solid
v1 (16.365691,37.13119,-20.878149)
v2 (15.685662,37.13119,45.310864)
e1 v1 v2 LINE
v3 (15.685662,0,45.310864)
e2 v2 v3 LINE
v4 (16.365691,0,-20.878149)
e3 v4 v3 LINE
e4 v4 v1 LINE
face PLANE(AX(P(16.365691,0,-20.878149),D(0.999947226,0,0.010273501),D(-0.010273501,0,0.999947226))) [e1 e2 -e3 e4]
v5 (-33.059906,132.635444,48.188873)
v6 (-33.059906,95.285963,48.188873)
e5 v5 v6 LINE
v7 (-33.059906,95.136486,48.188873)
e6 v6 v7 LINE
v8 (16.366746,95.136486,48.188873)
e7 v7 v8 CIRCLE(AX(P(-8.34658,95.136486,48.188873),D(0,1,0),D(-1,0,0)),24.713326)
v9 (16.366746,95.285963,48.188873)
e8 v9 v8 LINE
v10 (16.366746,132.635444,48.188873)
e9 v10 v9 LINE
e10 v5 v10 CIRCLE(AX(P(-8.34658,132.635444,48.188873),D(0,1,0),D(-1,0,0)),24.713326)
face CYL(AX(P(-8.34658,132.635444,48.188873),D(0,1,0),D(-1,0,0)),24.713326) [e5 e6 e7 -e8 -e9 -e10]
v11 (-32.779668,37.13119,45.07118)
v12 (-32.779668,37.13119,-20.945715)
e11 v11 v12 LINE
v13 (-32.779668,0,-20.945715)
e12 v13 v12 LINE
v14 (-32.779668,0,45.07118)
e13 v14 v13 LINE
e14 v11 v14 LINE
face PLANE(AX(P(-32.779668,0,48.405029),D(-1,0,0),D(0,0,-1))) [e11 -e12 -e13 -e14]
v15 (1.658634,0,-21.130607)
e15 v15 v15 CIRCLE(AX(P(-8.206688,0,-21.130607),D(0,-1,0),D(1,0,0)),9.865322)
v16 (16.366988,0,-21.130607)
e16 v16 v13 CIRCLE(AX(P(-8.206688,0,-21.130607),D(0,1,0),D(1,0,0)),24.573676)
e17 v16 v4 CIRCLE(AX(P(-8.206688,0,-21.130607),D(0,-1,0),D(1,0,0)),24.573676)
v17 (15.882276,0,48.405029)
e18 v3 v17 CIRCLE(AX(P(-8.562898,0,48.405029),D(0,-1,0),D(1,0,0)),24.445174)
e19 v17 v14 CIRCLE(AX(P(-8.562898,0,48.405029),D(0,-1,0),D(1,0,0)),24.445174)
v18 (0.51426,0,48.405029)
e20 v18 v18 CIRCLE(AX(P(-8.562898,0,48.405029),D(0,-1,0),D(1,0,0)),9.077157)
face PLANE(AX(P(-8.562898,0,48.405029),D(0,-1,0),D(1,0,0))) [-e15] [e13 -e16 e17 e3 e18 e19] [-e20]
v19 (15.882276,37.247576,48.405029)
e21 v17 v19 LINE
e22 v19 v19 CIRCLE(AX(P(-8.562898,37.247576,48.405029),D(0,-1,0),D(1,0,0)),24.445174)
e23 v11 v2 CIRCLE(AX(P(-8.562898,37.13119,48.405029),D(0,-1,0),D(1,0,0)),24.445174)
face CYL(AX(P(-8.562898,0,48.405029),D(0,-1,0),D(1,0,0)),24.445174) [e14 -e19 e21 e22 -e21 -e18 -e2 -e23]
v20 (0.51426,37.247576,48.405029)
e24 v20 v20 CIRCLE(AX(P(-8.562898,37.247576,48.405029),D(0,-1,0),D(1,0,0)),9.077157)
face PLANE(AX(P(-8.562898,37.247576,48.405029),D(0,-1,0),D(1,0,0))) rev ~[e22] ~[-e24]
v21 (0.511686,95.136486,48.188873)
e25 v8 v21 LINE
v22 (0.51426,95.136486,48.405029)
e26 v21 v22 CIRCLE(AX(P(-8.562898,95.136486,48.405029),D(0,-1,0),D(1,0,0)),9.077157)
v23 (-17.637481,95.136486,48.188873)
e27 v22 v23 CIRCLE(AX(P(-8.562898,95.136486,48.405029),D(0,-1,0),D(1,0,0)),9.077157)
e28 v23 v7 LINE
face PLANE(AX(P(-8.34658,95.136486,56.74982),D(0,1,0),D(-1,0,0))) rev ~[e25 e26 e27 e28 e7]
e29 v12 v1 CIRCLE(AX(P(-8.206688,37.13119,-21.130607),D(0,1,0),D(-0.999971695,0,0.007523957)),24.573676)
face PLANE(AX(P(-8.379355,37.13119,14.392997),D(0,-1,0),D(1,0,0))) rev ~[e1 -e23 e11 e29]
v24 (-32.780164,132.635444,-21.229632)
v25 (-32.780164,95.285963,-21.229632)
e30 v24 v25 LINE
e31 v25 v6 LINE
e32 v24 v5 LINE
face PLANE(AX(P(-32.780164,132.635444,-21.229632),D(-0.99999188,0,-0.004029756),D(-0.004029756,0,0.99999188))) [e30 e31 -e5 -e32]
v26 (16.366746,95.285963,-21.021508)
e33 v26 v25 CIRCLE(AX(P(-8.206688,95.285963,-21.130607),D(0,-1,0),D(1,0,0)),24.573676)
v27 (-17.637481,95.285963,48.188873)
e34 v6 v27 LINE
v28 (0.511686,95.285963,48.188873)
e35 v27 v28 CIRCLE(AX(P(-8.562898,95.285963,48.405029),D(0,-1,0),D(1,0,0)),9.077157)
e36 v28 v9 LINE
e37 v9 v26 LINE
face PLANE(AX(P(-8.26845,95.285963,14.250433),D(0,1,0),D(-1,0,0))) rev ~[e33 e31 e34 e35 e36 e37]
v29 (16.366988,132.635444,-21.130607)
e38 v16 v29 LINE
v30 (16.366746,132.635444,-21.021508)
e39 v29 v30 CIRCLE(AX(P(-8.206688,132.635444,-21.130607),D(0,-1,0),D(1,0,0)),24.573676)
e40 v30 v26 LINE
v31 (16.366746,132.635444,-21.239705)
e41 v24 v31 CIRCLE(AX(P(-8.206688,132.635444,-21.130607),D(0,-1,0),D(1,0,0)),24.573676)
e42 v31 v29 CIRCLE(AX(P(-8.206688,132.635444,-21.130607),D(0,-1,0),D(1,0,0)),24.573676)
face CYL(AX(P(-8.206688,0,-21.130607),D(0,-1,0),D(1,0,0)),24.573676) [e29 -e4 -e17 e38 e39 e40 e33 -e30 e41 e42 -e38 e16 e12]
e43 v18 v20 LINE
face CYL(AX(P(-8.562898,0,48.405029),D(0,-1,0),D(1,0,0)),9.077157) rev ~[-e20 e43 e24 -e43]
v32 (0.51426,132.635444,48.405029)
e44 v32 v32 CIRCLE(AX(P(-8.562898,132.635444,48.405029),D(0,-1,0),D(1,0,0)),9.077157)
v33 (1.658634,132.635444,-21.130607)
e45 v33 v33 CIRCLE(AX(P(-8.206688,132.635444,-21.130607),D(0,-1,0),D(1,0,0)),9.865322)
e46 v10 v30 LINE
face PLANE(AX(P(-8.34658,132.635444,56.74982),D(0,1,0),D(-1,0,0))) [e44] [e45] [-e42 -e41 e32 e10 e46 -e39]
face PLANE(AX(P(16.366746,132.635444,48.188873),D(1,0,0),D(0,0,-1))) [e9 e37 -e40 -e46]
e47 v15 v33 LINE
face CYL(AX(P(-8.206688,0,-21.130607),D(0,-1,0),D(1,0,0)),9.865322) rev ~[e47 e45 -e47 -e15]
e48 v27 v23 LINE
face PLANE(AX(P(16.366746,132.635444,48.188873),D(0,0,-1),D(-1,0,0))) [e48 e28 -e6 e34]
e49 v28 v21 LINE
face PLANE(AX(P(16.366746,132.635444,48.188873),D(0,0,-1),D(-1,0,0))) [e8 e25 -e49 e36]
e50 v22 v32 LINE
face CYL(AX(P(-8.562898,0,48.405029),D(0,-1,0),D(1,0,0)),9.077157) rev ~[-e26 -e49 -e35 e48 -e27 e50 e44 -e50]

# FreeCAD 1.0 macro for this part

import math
import FreeCAD as App
import Part
import Sketcher
Q = App.Units.Quantity

doc = App.newDocument("Part")
body = doc.addObject("PartDesign::Body", "Body")

sketch1 = doc.addObject("Sketcher::SketchObject", "Sketch")
body.addObject(sketch1)
sketch1.AttachmentSupport = (doc.XZ_Plane, [""])
sketch1.MapMode = "FlatFace"
sketch1.addGeometry(Part.Circle(App.Vector(-8, -21, 0), App.Vector(0, 0, 1), 25), False)
sketch1.addConstraint(Sketcher.Constraint("Diameter", 0, Q("49.147352 mm")))
sketch1.addConstraint(Sketcher.Constraint("DistanceX", 0, 3, -1, 1, Q("8.206688 mm")))
sketch1.addConstraint(Sketcher.Constraint("DistanceY", 0, 3, -1, 1, Q("21.130607 mm")))
pad1 = doc.addObject("PartDesign::Pad", "Pad")
body.addObject(pad1)
pad1.Profile = sketch1
pad1.Length = 132.635444
pad1.Reversed = True

sketch2 = doc.addObject("Sketcher::SketchObject", "Sketch001")
body.addObject(sketch2)
sketch2.AttachmentSupport = (doc.XZ_Plane, [""])
sketch2.MapMode = "FlatFace"
sketch2.addGeometry(Part.ArcOfCircle(Part.Circle(App.Vector(-8.21, -21.13, 0), App.Vector(0, 0, 1), 24.57), math.radians(179.57), math.radians(180.43)), False)
sketch2.addGeometry(Part.LineSegment(App.Vector(-32.78, -21.32, 0), App.Vector(-32.78, -20.95, 0)), False)
sketch2.addGeometry(Part.LineSegment(App.Vector(-32.78, 48.41, 0), App.Vector(-32.78, -20.95, 0)), False)
sketch2.addGeometry(Part.ArcOfCircle(Part.Circle(App.Vector(-8.21, -21.13, 0), App.Vector(0, 0, 1), 24.57), math.radians(1), math.radians(180)), False)
sketch2.addGeometry(Part.LineSegment(App.Vector(16.37, -20.88, 0), App.Vector(15.65, 48.41, 0)), False)
sketch2.addGeometry(Part.LineSegment(App.Vector(15.65, 48.41, 0), App.Vector(-32.78, 48.41, 0)), False)
sketch2.addConstraint(Sketcher.Constraint("Coincident", 0, 1, 1, 2))
sketch2.addConstraint(Sketcher.Constraint("Coincident", 1, 1, 0, 2))
sketch2.addConstraint(Sketcher.Constraint("Coincident", 2, 2, 3, 2))
sketch2.addConstraint(Sketcher.Constraint("Tangent", 3, 1, 4, 1))
sketch2.addConstraint(Sketcher.Constraint("Coincident", 4, 2, 5, 1))
sketch2.addConstraint(Sketcher.Constraint("Coincident", 5, 2, 2, 1))
sketch2.addConstraint(Sketcher.Constraint("Vertical", 1))
sketch2.addConstraint(Sketcher.Constraint("Vertical", 2))
sketch2.addConstraint(Sketcher.Constraint("Horizontal", 5))
sketch2.addConstraint(Sketcher.Constraint("Coincident", 3, 3, 0, 3))
sketch2.addConstraint(Sketcher.Constraint("Coincident", 2, 2, 0, 1))
sketch2.addConstraint(Sketcher.Constraint("Radius", 0, Q("24.573675 mm")))
sketch2.addConstraint(Sketcher.Constraint("DistanceX", 5, 2, 5, 1, Q("48.433541 mm")))
sketch2.addConstraint(Sketcher.Constraint("DistanceY", 1, 1, 1, 2, Q("0.369783 mm")))
sketch2.addConstraint(Sketcher.Constraint("DistanceY", 2, 2, 2, 1, Q("69.350745 mm")))
sketch2.addConstraint(Sketcher.Constraint("DistanceX", 0, 3, -1, 1, Q("8.206689 mm")))
sketch2.addConstraint(Sketcher.Constraint("DistanceY", 3, 1, -1, 1, Q("20.878149 mm")))
pad2 = doc.addObject("PartDesign::Pad", "Pad001")
body.addObject(pad2)
pad2.Profile = sketch2
pad2.Length = 37.13119
pad2.Reversed = True

sketch3 = doc.addObject("Sketcher::SketchObject", "Sketch002")
body.addObject(sketch3)
sketch3.AttachmentSupport = (doc.XZ_Plane, [""])
sketch3.MapMode = "FlatFace"
sketch3.AttachmentOffset = App.Placement(App.Vector(0, 0, -132.635444), App.Rotation())
sketch3.addGeometry(Part.LineSegment(App.Vector(16, 48, 0), App.Vector(16, -21, 0)), False)
sketch3.addGeometry(Part.ArcOfCircle(Part.Circle(App.Vector(-8, -21, 0), App.Vector(0, 0, 1), 25), math.radians(0), math.radians(180)), False)
sketch3.addGeometry(Part.LineSegment(App.Vector(-33, -21, 0), App.Vector(-33, 48, 0)), False)
sketch3.addGeometry(Part.LineSegment(App.Vector(-33, 48, 0), App.Vector(16, 48, 0)), False)
sketch3.addConstraint(Sketcher.Constraint("Tangent", 0, 2, 1, 1))
sketch3.addConstraint(Sketcher.Constraint("Coincident", 1, 2, 2, 1))
sketch3.addConstraint(Sketcher.Constraint("Coincident", 2, 2, 3, 1))
sketch3.addConstraint(Sketcher.Constraint("Coincident", 3, 2, 0, 1))
sketch3.addConstraint(Sketcher.Constraint("Vertical", 0))
sketch3.addConstraint(Sketcher.Constraint("Horizontal", 3))
sketch3.addConstraint(Sketcher.Constraint("Radius", 1, Q("24.573456 mm")))
sketch3.addConstraint(Sketcher.Constraint("Distance", 2, Q("69.419069 mm")))
sketch3.addConstraint(Sketcher.Constraint("DistanceX", 3, 1, 3, 2, Q("49.426652 mm")))
sketch3.addConstraint(Sketcher.Constraint("DistanceY", 0, 2, 0, 1, Q("69.428578 mm")))
sketch3.addConstraint(Sketcher.Constraint("DistanceX", 1, 3, -1, 1, Q("8.20671 mm")))
sketch3.addConstraint(Sketcher.Constraint("DistanceY", 1, 3, -1, 1, Q("21.239705 mm")))
pad3 = doc.addObject("PartDesign::Pad", "Pad002")
body.addObject(pad3)
pad3.Profile = sketch3
pad3.Length = 37.349481

sketch4 = doc.addObject("Sketcher::SketchObject", "Sketch003")
body.addObject(sketch4)
sketch4.AttachmentSupport = (doc.XZ_Plane, [""])
sketch4.MapMode = "FlatFace"
sketch4.addGeometry(Part.Circle(App.Vector(-9, 48, 0), App.Vector(0, 0, 1), 24), False)
sketch4.addConstraint(Sketcher.Constraint("Diameter", 0, Q("48.890348 mm")))
sketch4.addConstraint(Sketcher.Constraint("DistanceY", -1, 1, 0, 3, Q("48.405029 mm")))
sketch4.addConstraint(Sketcher.Constraint("DistanceX", 0, 3, -1, 1, Q("8.562898 mm")))
pad4 = doc.addObject("PartDesign::Pad", "Pad003")
body.addObject(pad4)
pad4.Profile = sketch4
pad4.Length = 37.247576
pad4.Reversed = True

sketch5 = doc.addObject("Sketcher::SketchObject", "Sketch004")
body.addObject(sketch5)
sketch5.AttachmentSupport = (doc.XZ_Plane, [""])
sketch5.MapMode = "FlatFace"
sketch5.AttachmentOffset = App.Placement(App.Vector(0, 0, -132.635444), App.Rotation())
sketch5.addGeometry(Part.LineSegment(App.Vector(16, 48, 0), App.Vector(-33, 48, 0)), False)
sketch5.addGeometry(Part.ArcOfCircle(Part.Circle(App.Vector(-8, 48, 0), App.Vector(0, 0, 1), 25), math.radians(0), math.radians(180)), False)
sketch5.addConstraint(Sketcher.Constraint("Coincident", 0, 1, 1, 1))
sketch5.addConstraint(Sketcher.Constraint("Coincident", 1, 2, 0, 2))
sketch5.addConstraint(Sketcher.Constraint("Horizontal", 0))
sketch5.addConstraint(Sketcher.Constraint("Horizontal", 1, 3, 0, 1))
sketch5.addConstraint(Sketcher.Constraint("Radius", 1, Q("24.713326 mm")))
sketch5.addConstraint(Sketcher.Constraint("DistanceX", 1, 3, -1, 1, Q("8.34658 mm")))
sketch5.addConstraint(Sketcher.Constraint("DistanceY", -1, 1, 1, 3, Q("48.188873 mm")))
pad5 = doc.addObject("PartDesign::Pad", "Pad004")
body.addObject(pad5)
pad5.Profile = sketch5
pad5.Length = 37.498958

sketch6 = doc.addObject("Sketcher::SketchObject", "Sketch005")
body.addObject(sketch6)
sketch6.AttachmentSupport = (doc.XZ_Plane, [""])
sketch6.MapMode = "FlatFace"
sketch6.addGeometry(Part.Circle(App.Vector(-9, 48, 0), App.Vector(0, 0, 1), 9), False)
sketch6.addConstraint(Sketcher.Constraint("Diameter", 0, Q("18.154315 mm")))
sketch6.addConstraint(Sketcher.Constraint("DistanceY", -1, 1, 0, 3, Q("48.405029 mm")))
sketch6.addConstraint(Sketcher.Constraint("DistanceX", 0, 3, -1, 1, Q("8.562898 mm")))
pocket1 = doc.addObject("PartDesign::Pocket", "Pocket")
body.addObject(pocket1)
pocket1.Profile = sketch6
pocket1.Type = "ThroughAll"

sketch7 = doc.addObject("Sketcher::SketchObject", "Sketch006")
body.addObject(sketch7)
sketch7.AttachmentSupport = (doc.XZ_Plane, [""])
sketch7.MapMode = "FlatFace"
sketch7.addGeometry(Part.Circle(App.Vector(-8, -21, 0), App.Vector(0, 0, 1), 10), False)
sketch7.addConstraint(Sketcher.Constraint("Diameter", 0, Q("19.730643 mm")))
sketch7.addConstraint(Sketcher.Constraint("DistanceX", 0, 3, -1, 1, Q("8.206688 mm")))
sketch7.addConstraint(Sketcher.Constraint("DistanceY", 0, 3, -1, 1, Q("21.130607 mm")))
pocket2 = doc.addObject("PartDesign::Pocket", "Pocket001")
body.addObject(pocket2)
pocket2.Profile = sketch7
pocket2.Type = "ThroughAll"

doc.recompute()
